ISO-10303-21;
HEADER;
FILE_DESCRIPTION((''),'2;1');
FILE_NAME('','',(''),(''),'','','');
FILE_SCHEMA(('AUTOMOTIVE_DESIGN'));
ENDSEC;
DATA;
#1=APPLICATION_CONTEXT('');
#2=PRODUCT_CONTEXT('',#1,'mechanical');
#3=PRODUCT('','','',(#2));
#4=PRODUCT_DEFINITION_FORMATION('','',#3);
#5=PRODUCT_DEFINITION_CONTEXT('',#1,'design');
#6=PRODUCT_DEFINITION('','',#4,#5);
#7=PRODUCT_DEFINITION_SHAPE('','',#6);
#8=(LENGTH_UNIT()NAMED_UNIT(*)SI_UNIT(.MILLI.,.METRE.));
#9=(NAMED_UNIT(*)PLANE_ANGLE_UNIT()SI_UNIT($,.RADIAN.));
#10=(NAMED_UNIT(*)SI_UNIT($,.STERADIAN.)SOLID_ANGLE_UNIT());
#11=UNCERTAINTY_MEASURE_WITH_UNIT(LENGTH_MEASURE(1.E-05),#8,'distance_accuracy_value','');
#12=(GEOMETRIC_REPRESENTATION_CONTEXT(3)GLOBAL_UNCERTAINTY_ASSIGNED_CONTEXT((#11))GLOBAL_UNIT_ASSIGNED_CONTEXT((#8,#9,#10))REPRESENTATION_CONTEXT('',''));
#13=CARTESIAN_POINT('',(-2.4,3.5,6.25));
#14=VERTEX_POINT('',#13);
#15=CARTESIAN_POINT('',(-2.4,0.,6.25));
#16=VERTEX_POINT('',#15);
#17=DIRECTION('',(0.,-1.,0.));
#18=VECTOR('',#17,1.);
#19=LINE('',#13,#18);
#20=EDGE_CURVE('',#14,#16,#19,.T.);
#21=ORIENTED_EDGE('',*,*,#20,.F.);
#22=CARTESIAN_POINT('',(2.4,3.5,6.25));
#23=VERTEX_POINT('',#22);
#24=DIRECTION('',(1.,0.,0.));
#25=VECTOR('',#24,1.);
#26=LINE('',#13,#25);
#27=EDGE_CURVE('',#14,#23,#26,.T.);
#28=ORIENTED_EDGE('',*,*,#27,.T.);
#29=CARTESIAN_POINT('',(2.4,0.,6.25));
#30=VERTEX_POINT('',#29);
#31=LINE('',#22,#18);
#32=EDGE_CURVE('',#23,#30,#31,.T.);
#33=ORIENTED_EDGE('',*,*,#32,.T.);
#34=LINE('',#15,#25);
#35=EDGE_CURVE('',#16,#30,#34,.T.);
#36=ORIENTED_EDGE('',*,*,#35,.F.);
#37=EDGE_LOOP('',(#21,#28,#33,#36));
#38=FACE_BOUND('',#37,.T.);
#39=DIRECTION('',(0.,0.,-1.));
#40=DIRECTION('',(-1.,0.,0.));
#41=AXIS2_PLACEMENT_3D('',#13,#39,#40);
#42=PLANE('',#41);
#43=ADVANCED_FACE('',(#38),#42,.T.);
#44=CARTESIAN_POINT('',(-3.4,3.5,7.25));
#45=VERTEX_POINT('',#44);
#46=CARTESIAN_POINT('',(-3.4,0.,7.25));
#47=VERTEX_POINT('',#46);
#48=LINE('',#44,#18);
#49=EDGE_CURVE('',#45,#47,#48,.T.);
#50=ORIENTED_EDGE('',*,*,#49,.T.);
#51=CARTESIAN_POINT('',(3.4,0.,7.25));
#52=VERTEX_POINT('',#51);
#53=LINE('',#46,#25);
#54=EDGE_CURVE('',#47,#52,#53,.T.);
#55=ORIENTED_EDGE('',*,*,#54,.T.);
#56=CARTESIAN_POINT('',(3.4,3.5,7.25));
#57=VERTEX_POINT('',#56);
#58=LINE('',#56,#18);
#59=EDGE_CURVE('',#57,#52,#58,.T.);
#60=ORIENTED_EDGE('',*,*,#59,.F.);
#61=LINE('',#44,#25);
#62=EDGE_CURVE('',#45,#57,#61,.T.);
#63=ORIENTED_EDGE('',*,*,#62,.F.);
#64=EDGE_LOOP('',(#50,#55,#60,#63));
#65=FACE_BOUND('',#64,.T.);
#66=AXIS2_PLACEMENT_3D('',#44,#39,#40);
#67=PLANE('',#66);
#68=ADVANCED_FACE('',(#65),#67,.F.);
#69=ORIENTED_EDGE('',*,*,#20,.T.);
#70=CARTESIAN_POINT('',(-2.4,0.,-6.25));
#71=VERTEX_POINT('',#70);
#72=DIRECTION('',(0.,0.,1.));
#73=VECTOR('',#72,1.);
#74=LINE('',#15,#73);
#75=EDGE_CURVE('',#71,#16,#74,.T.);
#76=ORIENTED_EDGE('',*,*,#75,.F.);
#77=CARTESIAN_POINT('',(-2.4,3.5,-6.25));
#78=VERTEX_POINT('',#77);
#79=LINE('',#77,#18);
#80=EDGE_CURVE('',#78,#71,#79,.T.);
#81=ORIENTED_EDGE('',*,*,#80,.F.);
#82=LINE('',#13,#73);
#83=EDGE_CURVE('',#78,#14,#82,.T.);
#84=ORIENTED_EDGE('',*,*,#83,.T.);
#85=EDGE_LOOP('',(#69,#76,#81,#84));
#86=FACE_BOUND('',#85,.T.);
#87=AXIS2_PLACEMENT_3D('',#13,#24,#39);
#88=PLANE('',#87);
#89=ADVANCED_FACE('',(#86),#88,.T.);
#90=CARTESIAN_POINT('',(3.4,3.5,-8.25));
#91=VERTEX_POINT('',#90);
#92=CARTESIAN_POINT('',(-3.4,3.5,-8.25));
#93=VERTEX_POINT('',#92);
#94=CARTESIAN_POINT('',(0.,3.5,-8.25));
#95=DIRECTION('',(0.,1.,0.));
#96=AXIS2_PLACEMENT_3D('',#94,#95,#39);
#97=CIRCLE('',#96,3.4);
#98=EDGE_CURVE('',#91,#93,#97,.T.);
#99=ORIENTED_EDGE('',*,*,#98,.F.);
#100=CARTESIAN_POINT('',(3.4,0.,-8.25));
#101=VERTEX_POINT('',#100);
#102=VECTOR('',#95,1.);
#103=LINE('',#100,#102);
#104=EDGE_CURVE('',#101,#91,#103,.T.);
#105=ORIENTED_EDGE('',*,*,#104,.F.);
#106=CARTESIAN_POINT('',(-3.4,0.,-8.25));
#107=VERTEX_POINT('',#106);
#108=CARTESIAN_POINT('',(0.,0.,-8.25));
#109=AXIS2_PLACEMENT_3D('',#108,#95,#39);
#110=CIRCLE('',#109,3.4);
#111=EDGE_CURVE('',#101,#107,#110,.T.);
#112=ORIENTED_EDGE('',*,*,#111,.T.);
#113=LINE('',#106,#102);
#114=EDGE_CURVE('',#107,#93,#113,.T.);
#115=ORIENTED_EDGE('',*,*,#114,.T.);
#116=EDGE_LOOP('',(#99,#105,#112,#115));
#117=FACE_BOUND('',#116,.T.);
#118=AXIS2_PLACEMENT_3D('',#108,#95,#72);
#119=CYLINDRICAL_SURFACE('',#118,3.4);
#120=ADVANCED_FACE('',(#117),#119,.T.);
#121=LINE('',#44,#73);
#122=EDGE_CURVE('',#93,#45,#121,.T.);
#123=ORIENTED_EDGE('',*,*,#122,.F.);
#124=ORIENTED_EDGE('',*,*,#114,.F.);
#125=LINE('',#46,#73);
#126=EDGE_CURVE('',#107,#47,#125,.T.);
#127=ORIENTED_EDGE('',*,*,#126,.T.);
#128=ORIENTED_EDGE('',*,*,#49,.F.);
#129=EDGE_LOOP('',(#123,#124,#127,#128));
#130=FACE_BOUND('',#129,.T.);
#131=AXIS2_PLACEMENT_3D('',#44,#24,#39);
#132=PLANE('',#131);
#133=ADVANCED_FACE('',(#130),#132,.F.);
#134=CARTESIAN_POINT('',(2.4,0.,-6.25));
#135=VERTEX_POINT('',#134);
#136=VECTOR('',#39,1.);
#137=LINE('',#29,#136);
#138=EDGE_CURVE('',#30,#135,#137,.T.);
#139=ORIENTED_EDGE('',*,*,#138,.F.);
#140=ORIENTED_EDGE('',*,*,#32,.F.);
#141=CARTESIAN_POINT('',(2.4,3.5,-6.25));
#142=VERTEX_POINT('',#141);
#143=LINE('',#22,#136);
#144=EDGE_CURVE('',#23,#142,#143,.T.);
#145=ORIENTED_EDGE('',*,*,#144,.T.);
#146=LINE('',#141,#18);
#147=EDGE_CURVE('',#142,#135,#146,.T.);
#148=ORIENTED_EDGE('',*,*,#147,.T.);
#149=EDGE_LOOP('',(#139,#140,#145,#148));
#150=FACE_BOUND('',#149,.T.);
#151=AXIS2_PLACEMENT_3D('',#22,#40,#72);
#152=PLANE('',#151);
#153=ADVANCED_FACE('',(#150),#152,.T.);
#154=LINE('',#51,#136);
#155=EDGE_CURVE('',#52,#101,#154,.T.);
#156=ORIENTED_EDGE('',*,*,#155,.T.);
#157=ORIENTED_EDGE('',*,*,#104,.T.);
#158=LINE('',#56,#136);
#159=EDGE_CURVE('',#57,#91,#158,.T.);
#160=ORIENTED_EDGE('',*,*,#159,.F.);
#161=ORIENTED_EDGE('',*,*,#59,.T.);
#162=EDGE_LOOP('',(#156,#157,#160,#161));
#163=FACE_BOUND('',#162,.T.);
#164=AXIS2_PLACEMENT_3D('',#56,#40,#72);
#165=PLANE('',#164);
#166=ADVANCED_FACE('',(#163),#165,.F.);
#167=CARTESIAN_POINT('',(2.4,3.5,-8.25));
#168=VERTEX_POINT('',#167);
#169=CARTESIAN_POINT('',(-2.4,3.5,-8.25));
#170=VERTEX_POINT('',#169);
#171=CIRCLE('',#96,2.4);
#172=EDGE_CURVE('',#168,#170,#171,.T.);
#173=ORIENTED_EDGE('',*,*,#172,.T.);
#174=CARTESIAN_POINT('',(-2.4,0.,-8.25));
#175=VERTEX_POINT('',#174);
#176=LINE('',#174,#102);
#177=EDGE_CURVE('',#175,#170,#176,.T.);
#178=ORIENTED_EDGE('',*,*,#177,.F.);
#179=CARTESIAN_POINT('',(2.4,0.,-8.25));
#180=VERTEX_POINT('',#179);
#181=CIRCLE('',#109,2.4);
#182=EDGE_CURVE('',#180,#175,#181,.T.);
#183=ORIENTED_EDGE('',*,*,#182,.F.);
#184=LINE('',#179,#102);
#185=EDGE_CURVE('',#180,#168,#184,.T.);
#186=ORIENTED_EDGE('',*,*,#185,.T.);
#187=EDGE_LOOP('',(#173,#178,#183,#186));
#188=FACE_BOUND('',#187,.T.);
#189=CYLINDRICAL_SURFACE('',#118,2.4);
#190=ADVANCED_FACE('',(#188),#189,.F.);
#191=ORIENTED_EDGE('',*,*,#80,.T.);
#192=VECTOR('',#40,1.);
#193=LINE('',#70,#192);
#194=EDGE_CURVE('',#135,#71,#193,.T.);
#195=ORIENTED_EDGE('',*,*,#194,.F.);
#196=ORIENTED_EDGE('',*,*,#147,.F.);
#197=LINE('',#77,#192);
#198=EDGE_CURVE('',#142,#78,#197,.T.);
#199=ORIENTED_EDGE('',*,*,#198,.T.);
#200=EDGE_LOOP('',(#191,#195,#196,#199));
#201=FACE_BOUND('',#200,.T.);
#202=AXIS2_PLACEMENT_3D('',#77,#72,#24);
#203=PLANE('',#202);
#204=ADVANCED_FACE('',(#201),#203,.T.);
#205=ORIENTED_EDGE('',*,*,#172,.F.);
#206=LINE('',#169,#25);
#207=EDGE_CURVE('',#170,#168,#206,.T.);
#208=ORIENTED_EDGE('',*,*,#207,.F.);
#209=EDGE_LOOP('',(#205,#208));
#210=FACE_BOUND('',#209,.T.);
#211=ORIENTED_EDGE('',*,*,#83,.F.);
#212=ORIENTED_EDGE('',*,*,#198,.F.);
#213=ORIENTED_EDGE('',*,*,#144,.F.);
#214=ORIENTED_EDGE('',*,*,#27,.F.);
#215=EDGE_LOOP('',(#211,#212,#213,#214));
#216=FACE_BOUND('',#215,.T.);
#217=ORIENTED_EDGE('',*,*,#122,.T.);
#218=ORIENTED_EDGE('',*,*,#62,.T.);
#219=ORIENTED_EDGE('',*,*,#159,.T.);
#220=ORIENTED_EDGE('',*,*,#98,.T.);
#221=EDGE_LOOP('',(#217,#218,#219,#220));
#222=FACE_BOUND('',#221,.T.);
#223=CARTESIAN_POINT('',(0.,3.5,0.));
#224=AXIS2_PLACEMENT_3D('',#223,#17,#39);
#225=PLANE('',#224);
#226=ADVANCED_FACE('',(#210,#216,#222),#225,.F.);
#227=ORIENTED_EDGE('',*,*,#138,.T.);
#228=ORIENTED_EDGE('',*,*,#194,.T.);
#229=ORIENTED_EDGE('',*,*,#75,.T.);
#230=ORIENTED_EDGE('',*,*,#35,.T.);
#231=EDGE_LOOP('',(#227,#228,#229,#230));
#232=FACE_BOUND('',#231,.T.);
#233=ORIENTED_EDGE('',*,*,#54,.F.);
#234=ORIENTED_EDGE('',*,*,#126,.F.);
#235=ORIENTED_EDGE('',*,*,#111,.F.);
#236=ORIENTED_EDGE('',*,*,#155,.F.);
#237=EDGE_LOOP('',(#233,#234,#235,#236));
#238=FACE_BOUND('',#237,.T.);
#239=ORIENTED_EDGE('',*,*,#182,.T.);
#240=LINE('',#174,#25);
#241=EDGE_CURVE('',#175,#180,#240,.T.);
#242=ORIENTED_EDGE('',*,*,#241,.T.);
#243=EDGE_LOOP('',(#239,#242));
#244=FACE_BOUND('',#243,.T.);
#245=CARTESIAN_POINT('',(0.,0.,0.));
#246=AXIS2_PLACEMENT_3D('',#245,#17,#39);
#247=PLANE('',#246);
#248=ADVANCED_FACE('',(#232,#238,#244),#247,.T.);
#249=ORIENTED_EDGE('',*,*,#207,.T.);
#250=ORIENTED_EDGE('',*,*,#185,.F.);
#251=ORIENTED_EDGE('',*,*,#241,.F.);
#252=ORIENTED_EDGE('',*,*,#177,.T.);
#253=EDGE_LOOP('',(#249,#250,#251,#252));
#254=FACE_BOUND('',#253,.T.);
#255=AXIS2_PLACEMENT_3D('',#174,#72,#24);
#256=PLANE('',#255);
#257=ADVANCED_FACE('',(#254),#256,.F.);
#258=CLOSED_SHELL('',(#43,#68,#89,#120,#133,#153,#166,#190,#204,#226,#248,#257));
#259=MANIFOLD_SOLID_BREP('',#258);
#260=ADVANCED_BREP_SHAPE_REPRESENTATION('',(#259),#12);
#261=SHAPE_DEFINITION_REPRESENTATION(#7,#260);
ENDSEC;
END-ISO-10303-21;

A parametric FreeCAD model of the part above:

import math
import FreeCAD as App
import Part
import Sketcher
from FreeCAD import Vector
Q = App.Units.Quantity

doc = App.newDocument("Part")
body = doc.addObject("PartDesign::Body", "Body")

# Sketch on XZ plane
sketch1 = body.newObject("Sketcher::SketchObject", "Sketch")
sketch1.AttachmentSupport = (doc.getObject("XZ_Plane"), [""])
sketch1.MapMode = "FlatFace"
sketch1.addGeometry([
    Part.LineSegment(Vector(-3.4, -7.2, 0), Vector(-3.4, 7.2, 0)),  # 0
    Part.LineSegment(Vector(-3.4, 7.2, 0), Vector(3.4, 7.2, 0)),  # 1
    Part.LineSegment(Vector(3.4, 7.2, 0), Vector(3.4, -7.2, 0)),  # 2
    Part.LineSegment(Vector(3.4, -7.2, 0), Vector(-3.4, -7.2, 0)),  # 3
    Part.LineSegment(Vector(2.4, 6.2, 0), Vector(-2.4, 6.2, 0)),  # 4
    Part.LineSegment(Vector(-2.4, 6.2, 0), Vector(-2.4, -6.2, 0)),  # 5
    Part.LineSegment(Vector(-2.4, -6.2, 0), Vector(2.4, -6.2, 0)),  # 6
    Part.LineSegment(Vector(2.4, -6.2, 0), Vector(2.4, 6.2, 0)),  # 7
], False)
sketch1.addConstraint([
    Sketcher.Constraint("Coincident", 0, 2, 1, 1),
    Sketcher.Constraint("Coincident", 1, 2, 2, 1),
    Sketcher.Constraint("Coincident", 2, 2, 3, 1),
    Sketcher.Constraint("Coincident", 3, 2, 0, 1),
    Sketcher.Constraint("Coincident", 4, 2, 5, 1),
    Sketcher.Constraint("Coincident", 5, 2, 6, 1),
    Sketcher.Constraint("Coincident", 6, 2, 7, 1),
    Sketcher.Constraint("Coincident", 7, 2, 4, 1),
    Sketcher.Constraint("Vertical", 0),
    Sketcher.Constraint("Horizontal", 1),
    Sketcher.Constraint("Vertical", 2),
    Sketcher.Constraint("Horizontal", 3),
    Sketcher.Constraint("Horizontal", 4),
    Sketcher.Constraint("Vertical", 5),
    Sketcher.Constraint("Horizontal", 6),
    Sketcher.Constraint("Vertical", 7),
    Sketcher.Constraint("Symmetric", 0, 2, 2, 2, -1, 1),
    Sketcher.Constraint("Symmetric", 4, 2, 6, 2, -1, 1),
    Sketcher.Constraint("DistanceX", 1, 1, 1, 2, Q("6.8 mm")),
    Sketcher.Constraint("DistanceX", 4, 2, 4, 1, Q("4.8 mm")),
    Sketcher.Constraint("DistanceY", 0, 1, 0, 2, Q("14.5 mm")),
    Sketcher.Constraint("DistanceY", 5, 2, 5, 1, Q("12.5 mm")),
])
pad1 = body.newObject("PartDesign::Pad", "Pad")
pad1.Profile = sketch1
pad1.Length = 3.5
pad1.Reversed = True

# Sketch on XZ plane
sketch2 = body.newObject("Sketcher::SketchObject", "Sketch001")
sketch2.AttachmentSupport = (doc.getObject("XZ_Plane"), [""])
sketch2.MapMode = "FlatFace"
sketch2.AttachmentOffset = App.Placement(Vector(0, 0, -3.5), App.Rotation())
sketch2.addGeometry([
    Part.LineSegment(Vector(-3.4, -7.2, 0), Vector(3.4, -7.2, 0)),  # 0
    Part.LineSegment(Vector(3.4, -7.2, 0), Vector(3.4, -8.2, 0)),  # 1
    Part.ArcOfCircle(Part.Circle(Vector(0, -8.2, 0), Vector(0, 0, 1), 3.4), math.radians(180), math.radians(360)),  # 2
    Part.LineSegment(Vector(-3.4, -8.2, 0), Vector(-3.4, -7.2, 0)),  # 3
    Part.LineSegment(Vector(2.4, -8.2, 0), Vector(-2.4, -8.2, 0)),  # 4
    Part.ArcOfCircle(Part.Circle(Vector(0, -8.2, 0), Vector(0, 0, 1), 2.4), math.radians(180), math.radians(360)),  # 5
], False)
sketch2.addConstraint([
    Sketcher.Constraint("Coincident", 0, 2, 1, 1),
    Sketcher.Constraint("Tangent", 1, 2, 2, 2),
    Sketcher.Constraint("Tangent", 2, 1, 3, 1),
    Sketcher.Constraint("Coincident", 3, 2, 0, 1),
    Sketcher.Constraint("Coincident", 4, 1, 5, 2),
    Sketcher.Constraint("Coincident", 5, 1, 4, 2),
    Sketcher.Constraint("Horizontal", 0),
    Sketcher.Constraint("Vertical", 1),
    Sketcher.Constraint("Vertical", 3),
    Sketcher.Constraint("Horizontal", 4),
    Sketcher.Constraint("Coincident", 5, 3, 2, 3),
    Sketcher.Constraint("PointOnObject", 2, 3, -2),
    Sketcher.Constraint("Horizontal", 2, 1, 4, 1),
    Sketcher.Constraint("Radius", 2, Q("3.4 mm")),
    Sketcher.Constraint("Radius", 5, Q("2.4 mm")),
    Sketcher.Constraint("DistanceY", 1, 2, 1, 1, Q("1 mm")),
    Sketcher.Constraint("DistanceY", 2, 3, -1, 1, Q("8.25 mm")),
])
pad2 = body.newObject("PartDesign::Pad", "Pad001")
pad2.Profile = sketch2
pad2.Length = 3.5

doc.recompute()
